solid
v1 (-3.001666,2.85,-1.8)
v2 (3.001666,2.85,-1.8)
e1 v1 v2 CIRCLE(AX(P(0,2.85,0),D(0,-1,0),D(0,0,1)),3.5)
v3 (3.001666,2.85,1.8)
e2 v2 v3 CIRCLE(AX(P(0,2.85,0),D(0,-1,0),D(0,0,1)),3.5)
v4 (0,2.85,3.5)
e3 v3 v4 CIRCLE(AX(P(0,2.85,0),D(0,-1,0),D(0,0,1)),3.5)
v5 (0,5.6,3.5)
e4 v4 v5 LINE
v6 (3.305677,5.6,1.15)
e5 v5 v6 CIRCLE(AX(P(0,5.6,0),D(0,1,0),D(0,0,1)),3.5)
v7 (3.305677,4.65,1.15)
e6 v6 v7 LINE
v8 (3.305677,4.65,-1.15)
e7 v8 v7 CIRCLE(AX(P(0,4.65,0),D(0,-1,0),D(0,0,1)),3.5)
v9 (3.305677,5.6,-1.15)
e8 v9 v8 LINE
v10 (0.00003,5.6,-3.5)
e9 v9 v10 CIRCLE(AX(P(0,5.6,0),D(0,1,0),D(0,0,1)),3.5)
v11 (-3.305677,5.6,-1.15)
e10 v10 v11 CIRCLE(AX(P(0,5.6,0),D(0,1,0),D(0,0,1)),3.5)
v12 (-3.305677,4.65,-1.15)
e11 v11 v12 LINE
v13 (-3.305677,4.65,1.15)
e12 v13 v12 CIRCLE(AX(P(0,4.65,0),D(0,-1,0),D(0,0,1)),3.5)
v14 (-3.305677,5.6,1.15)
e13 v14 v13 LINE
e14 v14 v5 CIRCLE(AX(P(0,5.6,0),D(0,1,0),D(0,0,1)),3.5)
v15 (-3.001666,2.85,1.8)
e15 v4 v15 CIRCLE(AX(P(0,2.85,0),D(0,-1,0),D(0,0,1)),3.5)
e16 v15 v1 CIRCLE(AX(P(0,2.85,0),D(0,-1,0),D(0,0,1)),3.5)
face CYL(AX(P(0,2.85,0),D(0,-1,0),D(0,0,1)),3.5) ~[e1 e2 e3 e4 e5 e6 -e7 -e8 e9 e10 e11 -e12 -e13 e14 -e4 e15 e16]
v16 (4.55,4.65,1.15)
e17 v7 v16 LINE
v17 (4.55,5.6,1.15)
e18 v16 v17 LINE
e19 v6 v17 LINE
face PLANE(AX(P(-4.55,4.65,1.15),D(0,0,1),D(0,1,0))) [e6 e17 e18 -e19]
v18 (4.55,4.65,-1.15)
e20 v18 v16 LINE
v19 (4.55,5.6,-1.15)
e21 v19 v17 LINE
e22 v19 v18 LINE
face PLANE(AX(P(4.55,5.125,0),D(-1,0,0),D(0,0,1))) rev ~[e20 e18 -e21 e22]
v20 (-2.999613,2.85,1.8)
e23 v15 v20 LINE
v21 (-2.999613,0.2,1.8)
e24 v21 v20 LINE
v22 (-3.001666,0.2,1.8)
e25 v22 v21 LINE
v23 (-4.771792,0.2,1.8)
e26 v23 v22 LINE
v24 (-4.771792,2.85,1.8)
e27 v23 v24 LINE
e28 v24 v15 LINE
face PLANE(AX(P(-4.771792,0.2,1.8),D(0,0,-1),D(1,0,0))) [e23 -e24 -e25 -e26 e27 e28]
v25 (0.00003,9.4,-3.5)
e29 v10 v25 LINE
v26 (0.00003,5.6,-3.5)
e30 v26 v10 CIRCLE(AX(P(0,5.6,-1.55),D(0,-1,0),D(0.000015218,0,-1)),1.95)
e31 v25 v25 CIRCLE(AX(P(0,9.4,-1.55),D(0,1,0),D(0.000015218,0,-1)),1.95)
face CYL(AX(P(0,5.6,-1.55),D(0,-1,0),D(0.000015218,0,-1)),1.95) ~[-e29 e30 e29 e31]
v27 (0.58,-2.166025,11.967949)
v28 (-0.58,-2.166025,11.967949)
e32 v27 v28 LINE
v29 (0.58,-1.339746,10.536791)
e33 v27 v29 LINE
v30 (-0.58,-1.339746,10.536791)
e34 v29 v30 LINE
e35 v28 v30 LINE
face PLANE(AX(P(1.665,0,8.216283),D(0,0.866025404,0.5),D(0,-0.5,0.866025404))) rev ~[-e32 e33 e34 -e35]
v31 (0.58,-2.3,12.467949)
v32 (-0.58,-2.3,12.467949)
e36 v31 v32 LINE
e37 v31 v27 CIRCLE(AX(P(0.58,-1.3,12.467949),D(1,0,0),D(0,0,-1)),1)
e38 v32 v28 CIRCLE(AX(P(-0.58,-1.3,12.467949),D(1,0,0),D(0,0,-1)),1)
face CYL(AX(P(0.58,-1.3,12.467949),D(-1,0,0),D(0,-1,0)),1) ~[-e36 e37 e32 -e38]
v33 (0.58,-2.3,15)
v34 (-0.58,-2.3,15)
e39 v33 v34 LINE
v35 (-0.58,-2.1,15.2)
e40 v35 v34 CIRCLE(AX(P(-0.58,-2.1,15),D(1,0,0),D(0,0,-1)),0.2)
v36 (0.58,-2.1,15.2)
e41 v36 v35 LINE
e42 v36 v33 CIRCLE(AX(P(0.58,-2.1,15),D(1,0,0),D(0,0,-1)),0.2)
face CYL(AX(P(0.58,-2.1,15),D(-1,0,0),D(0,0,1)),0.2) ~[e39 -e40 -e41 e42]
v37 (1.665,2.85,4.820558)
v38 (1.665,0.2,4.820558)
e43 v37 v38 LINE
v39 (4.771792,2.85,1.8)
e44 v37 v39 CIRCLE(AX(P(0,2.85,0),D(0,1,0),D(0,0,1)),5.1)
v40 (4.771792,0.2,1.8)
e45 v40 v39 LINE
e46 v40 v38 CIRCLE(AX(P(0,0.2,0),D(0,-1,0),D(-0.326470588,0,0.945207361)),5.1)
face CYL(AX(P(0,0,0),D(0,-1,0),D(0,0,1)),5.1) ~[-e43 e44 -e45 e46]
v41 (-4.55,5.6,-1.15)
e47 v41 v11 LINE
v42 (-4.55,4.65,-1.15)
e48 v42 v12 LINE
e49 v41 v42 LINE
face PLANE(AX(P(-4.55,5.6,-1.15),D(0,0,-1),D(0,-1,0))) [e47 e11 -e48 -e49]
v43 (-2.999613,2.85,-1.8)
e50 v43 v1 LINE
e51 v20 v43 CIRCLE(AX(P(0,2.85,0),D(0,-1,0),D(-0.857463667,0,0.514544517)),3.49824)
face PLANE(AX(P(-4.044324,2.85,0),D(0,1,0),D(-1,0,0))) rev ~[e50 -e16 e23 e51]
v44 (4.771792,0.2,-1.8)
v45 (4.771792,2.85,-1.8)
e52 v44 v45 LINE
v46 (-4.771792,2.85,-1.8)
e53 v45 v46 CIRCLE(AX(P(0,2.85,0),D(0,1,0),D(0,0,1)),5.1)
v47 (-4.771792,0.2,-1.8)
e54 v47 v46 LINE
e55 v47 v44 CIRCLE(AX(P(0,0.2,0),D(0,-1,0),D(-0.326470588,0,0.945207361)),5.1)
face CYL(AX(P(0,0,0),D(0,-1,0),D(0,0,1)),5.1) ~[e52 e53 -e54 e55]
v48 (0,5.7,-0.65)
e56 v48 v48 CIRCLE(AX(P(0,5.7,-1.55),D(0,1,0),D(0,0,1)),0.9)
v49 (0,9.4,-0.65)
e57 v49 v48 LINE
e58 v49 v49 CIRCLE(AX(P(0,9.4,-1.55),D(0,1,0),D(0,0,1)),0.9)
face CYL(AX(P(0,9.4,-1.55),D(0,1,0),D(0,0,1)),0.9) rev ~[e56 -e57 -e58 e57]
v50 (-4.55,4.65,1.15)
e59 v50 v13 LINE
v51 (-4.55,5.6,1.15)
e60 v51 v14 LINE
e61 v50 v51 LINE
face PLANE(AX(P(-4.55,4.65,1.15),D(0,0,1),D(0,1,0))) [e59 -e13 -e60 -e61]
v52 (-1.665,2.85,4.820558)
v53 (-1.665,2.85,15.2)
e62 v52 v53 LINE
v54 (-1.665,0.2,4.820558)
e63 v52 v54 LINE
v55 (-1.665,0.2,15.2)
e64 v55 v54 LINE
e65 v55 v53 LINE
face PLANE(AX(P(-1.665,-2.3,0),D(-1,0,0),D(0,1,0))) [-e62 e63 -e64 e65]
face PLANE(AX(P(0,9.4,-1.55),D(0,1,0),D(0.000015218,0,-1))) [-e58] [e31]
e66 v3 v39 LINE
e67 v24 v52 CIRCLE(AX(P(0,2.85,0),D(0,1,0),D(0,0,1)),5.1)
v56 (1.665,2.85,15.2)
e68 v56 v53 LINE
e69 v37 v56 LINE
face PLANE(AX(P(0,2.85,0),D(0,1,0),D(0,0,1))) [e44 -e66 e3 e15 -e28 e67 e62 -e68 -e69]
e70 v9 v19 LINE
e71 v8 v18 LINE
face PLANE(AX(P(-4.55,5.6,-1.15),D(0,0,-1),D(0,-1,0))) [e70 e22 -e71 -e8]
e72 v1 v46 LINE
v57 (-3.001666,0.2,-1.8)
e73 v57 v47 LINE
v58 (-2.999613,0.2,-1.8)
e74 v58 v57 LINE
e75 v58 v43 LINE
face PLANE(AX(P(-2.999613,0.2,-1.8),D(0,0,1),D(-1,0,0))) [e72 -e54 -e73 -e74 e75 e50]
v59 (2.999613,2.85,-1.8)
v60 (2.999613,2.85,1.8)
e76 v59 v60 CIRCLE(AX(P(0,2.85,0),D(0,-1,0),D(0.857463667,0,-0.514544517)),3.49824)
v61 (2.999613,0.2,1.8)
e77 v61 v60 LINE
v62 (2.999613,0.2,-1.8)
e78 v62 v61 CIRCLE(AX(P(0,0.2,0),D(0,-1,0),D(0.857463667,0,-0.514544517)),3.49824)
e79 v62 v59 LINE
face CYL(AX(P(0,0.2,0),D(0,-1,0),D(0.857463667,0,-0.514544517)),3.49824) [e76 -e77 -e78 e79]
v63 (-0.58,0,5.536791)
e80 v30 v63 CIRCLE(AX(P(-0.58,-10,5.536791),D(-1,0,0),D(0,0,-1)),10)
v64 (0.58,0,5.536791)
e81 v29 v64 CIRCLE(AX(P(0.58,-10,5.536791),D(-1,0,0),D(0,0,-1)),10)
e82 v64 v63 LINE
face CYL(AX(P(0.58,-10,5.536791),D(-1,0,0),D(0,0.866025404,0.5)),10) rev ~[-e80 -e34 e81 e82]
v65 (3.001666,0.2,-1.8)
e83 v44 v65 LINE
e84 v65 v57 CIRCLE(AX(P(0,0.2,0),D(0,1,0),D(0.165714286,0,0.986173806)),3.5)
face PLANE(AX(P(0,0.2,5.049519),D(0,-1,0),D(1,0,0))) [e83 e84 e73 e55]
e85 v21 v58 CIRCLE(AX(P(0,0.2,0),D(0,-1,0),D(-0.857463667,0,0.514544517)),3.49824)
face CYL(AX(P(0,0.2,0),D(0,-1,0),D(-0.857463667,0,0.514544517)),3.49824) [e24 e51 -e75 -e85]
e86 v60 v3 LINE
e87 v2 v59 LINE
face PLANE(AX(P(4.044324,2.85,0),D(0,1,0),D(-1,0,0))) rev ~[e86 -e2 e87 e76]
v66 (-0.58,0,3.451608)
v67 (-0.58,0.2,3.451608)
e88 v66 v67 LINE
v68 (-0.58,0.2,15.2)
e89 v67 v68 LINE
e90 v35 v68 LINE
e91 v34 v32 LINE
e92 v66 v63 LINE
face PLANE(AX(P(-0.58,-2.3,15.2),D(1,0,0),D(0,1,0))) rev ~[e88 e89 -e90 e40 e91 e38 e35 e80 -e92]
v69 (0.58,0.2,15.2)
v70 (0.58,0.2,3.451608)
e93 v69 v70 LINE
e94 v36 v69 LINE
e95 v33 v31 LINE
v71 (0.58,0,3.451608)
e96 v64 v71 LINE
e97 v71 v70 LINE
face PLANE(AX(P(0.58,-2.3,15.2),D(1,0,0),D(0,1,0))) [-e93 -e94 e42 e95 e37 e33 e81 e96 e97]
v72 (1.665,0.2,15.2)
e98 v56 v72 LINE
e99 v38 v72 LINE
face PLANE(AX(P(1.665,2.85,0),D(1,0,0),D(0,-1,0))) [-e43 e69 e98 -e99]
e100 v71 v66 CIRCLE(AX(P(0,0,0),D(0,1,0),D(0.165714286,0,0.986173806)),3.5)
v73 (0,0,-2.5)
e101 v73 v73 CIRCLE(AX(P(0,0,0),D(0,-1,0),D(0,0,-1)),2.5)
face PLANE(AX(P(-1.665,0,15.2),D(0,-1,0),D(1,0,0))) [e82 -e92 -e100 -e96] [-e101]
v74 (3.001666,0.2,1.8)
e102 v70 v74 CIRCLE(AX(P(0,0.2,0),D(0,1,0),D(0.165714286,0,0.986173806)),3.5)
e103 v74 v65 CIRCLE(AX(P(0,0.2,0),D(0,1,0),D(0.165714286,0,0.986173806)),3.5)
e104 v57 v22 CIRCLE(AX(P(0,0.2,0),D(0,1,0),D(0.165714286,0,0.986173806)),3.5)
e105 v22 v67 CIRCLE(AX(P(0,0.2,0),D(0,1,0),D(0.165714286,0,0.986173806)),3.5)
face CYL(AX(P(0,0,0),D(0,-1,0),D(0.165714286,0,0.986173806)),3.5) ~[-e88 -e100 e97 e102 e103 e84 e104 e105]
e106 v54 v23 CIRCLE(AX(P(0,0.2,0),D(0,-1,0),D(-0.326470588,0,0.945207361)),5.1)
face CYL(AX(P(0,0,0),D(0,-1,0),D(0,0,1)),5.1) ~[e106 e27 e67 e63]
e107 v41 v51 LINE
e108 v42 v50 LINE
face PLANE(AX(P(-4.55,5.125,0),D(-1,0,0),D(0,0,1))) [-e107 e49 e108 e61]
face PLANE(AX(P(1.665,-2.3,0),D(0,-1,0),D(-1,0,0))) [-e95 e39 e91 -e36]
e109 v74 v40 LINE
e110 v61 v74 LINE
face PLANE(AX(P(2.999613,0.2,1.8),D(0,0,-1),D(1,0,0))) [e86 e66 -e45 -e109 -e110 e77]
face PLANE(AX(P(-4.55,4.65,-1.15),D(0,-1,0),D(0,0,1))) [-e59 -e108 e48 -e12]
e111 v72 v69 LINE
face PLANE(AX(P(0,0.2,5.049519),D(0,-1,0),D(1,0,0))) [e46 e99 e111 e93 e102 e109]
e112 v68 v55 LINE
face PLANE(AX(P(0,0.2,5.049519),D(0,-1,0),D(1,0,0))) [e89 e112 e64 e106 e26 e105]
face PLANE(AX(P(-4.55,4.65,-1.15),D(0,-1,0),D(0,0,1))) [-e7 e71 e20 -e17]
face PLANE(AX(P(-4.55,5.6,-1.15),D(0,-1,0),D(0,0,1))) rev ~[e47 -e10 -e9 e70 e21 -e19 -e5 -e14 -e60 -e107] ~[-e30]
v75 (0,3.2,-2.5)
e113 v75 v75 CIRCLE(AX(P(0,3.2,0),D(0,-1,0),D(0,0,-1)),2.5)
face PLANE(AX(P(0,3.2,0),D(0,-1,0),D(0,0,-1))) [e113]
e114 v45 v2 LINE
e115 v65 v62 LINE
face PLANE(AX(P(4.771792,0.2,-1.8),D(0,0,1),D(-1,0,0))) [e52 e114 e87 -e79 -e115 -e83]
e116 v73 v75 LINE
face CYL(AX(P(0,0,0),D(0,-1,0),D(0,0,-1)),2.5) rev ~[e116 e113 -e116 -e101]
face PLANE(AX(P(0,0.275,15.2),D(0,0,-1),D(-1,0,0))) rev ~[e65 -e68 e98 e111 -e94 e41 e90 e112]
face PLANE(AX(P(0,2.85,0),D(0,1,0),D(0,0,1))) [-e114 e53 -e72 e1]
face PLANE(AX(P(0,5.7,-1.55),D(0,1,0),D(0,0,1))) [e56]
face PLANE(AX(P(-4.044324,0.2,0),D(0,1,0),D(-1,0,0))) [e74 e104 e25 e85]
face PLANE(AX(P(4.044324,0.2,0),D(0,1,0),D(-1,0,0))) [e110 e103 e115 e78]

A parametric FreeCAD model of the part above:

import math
import FreeCAD as App
import Part
import Sketcher

V = App.Vector
Q = App.Units.Quantity


def edges_at(feature, points):
    """Names of the edges that pass closest to the given points."""
    edges = feature.Shape.Edges
    near = lambda p: min(range(len(edges)), key=lambda i: edges[i].distToShape(Part.Vertex(*p))[0])
    return sorted({f"Edge{near(p) + 1}" for p in points})


def add_polygon(sketch, points):
    """Adds a closed chain of lines whose ends are joined by coincident constraints."""
    first, n = sketch.GeometryCount, len(points)
    for a, b in zip(points, points[1:] + points[:1]):
        sketch.addGeometry(Part.LineSegment(App.Vector(*a, 0), App.Vector(*b, 0)), False)
    for i in range(n):
        sketch.addConstraint(Sketcher.Constraint("Coincident", first + i, 2, first + (i + 1) % n, 1))

doc = App.newDocument("Part")
body = doc.addObject("PartDesign::Body", "Body")

# Sketch on XZ plane
sketch1 = doc.addObject("Sketcher::SketchObject", "Sketch")
body.addObject(sketch1)
sketch1.AttachmentSupport = (doc.XZ_Plane, [""])
sketch1.MapMode = "FlatFace"
sketch1.addGeometry(Part.Circle(V(0, 0, 0), V(0, 0, 1), 5.1), False)
sketch1.addConstraint([
    Sketcher.Constraint("Coincident", 0, 3, -1, 1),
    Sketcher.Constraint("Diameter", 0, Q("10.2 mm")),
])
pad1 = doc.addObject("PartDesign::Pad", "Pad")
body.addObject(pad1)
pad1.Profile = sketch1
pad1.Length = 2.85
pad1.Reversed = True

# Sketch on XZ plane
sketch2 = doc.addObject("Sketcher::SketchObject", "Sketch001")
body.addObject(sketch2)
sketch2.AttachmentSupport = (doc.XZ_Plane, [""])
sketch2.MapMode = "FlatFace"
sketch2.AttachmentOffset = App.Placement(V(0, 0, -2.85), App.Rotation())
sketch2.addGeometry(Part.Circle(V(0, 0, 0), V(0, 0, 1), 3.5), False)
sketch2.addConstraint([
    Sketcher.Constraint("Coincident", 0, 3, -1, 1),
    Sketcher.Constraint("Diameter", 0, Q("7 mm")),
])
pad2 = doc.addObject("PartDesign::Pad", "Pad001")
body.addObject(pad2)
pad2.Profile = sketch2
pad2.Length = 2.75
pad2.Reversed = True

# Sketch on XZ plane
sketch3 = doc.addObject("Sketcher::SketchObject", "Sketch002")
body.addObject(sketch3)
sketch3.AttachmentSupport = (doc.XZ_Plane, [""])
sketch3.MapMode = "FlatFace"
sketch3.AttachmentOffset = App.Placement(V(0, 0, -5.6), App.Rotation())
sketch3.addGeometry(Part.Circle(V(0, -1.55, 0), V(0, 0, 1), 1.95), False)
sketch3.addConstraint([
    Sketcher.Constraint("PointOnObject", 0, 3, -2),
    Sketcher.Constraint("Diameter", 0, Q("3.9 mm")),
    Sketcher.Constraint("DistanceY", 0, 3, -1, 1, Q("1.55 mm")),
])
pad3 = doc.addObject("PartDesign::Pad", "Pad002")
body.addObject(pad3)
pad3.Profile = sketch3
pad3.Length = 3.8
pad3.Reversed = True

# Sketch on XY plane
sketch4 = doc.addObject("Sketcher::SketchObject", "Sketch003")
body.addObject(sketch4)
sketch4.AttachmentSupport = (doc.XY_Plane, [""])
sketch4.MapMode = "FlatFace"
add_polygon(sketch4, [(1.665, 2.85), (-1.665, 2.85), (-1.665, -2.3), (1.665, -2.3)])  # lines 0-3
sketch4.addConstraint([
    Sketcher.Constraint("Horizontal", 0),
    Sketcher.Constraint("Vertical", 1),
    Sketcher.Constraint("Horizontal", 2),
    Sketcher.Constraint("Vertical", 3),
    Sketcher.Constraint("DistanceX", 0, 2, 0, 1, Q("3.33 mm")),
    Sketcher.Constraint("DistanceY", 1, 2, 1, 1, Q("5.15 mm")),
    Sketcher.Constraint("DistanceY", 1, 2, -1, 1, Q("2.3 mm")),
    Sketcher.Constraint("DistanceX", 0, 2, -1, 1, Q("1.665 mm")),
])
pad4 = doc.addObject("PartDesign::Pad", "Pad003")
body.addObject(pad4)
pad4.Profile = sketch4
pad4.Length = 15.2

# Sketch on YZ plane
sketch5 = doc.addObject("Sketcher::SketchObject", "Sketch004")
body.addObject(sketch5)
sketch5.AttachmentSupport = (doc.YZ_Plane, [""])
sketch5.MapMode = "FlatFace"
sketch5.AttachmentOffset = App.Placement(V(0, 0, 1.665), App.Rotation())
add_polygon(sketch5, [(-2.3, 0), (0, 0), (0, 8.216283), (-2.3, 12.2)])  # lines 0-3
sketch5.addConstraint([
    Sketcher.Constraint("Horizontal", 0),
    Sketcher.Constraint("Vertical", 1),
    Sketcher.Constraint("Vertical", 3),
    Sketcher.Constraint("Coincident", 0, 2, -1, 1),
    Sketcher.Constraint("Angle", 2, Q("120 deg")),
    Sketcher.Constraint("DistanceX", 0, 1, 0, 2, Q("2.3 mm")),
    Sketcher.Constraint("DistanceY", 3, 2, 3, 1, Q("12.2 mm")),
])
pocket1 = doc.addObject("PartDesign::Pocket", "Pocket")
body.addObject(pocket1)
pocket1.Profile = sketch5
pocket1.Type = "UpToFirst"

# Sketch on XY plane
sketch6 = doc.addObject("Sketcher::SketchObject", "Sketch005")
body.addObject(sketch6)
sketch6.AttachmentSupport = (doc.XY_Plane, [""])
sketch6.MapMode = "FlatFace"
sketch6.AttachmentOffset = App.Placement(V(0, 0, 15.2), App.Rotation())
add_polygon(sketch6, [(-1.665, 0), (-1.665, -2.3), (-0.58, -2.3), (-0.58, 0)])  # lines 0-3
add_polygon(sketch6, [(0.58, 0), (0.58, -2.3), (1.665, -2.3), (1.665, 0)])  # lines 4-7
sketch6.addConstraint([
    Sketcher.Constraint("Vertical", 0),
    Sketcher.Constraint("Horizontal", 1),
    Sketcher.Constraint("Vertical", 2),
    Sketcher.Constraint("Horizontal", 3),
    Sketcher.Constraint("Vertical", 4),
    Sketcher.Constraint("Horizontal", 5),
    Sketcher.Constraint("Vertical", 6),
    Sketcher.Constraint("Horizontal", 7),
    Sketcher.Constraint("Symmetric", 3, 2, 6, 2, -1, 1),
    Sketcher.Constraint("Symmetric", 1, 2, 4, 2, -2),
    Sketcher.Constraint("PointOnObject", 2, 2, -1),
    Sketcher.Constraint("DistanceY", 0, 2, 0, 1, Q("2.3 mm")),
    Sketcher.Constraint("DistanceX", 1, 1, 1, 2, Q("1.085 mm")),
    Sketcher.Constraint("DistanceX", 1, 2, -1, 1, Q("0.58 mm")),
])
pocket2 = doc.addObject("PartDesign::Pocket", "Pocket001")
body.addObject(pocket2)
pocket2.Profile = sketch6
pocket2.Length = 10.2
doc.recompute()

fillet = doc.addObject("PartDesign::Fillet", "Fillet")
body.addObject(fillet)
fillet.Base = (pocket2, edges_at(pocket2, [(0, -2.3, 12.2)]))
fillet.Radius = 1
doc.recompute()

fillet2 = doc.addObject("PartDesign::Fillet", "Fillet001")
body.addObject(fillet2)
fillet2.Base = (fillet, edges_at(fillet, [(0, 0, 8.216)]))
fillet2.Radius = 10

# Sketch on XZ plane
sketch7 = doc.addObject("Sketcher::SketchObject", "Sketch006")
body.addObject(sketch7)
sketch7.AttachmentSupport = (doc.XZ_Plane, [""])
sketch7.MapMode = "FlatFace"
sketch7.addGeometry([
    Part.LineSegment(V(-0.58, 15.2, 0), V(-1.665, 15.2, 0)),  # 0
    Part.LineSegment(V(-1.665, 15.2, 0), V(-1.665, 4.820558, 0)),  # 1
    Part.ArcOfCircle(Part.Circle(V(0, 0, 0), V(0, 0, 1), 5.1), math.radians(109.054694), math.radians(430.945306)),  # 2
    Part.LineSegment(V(1.665, 4.820558, 0), V(1.665, 15.2, 0)),  # 3
    Part.LineSegment(V(1.665, 15.2, 0), V(0.58, 15.2, 0)),  # 4
    Part.LineSegment(V(0.58, 15.2, 0), V(0.58, 3.451608, 0)),  # 5
    Part.ArcOfCircle(Part.Circle(V(0, 0, 0), V(0, 0, 1), 3.5), math.radians(99.538731), math.radians(440.461269)),  # 6
    Part.LineSegment(V(-0.58, 3.451608, 0), V(-0.58, 15.2, 0)),  # 7
], False)
sketch7.addConstraint([
    Sketcher.Constraint("Coincident", 0, 2, 1, 1),
    Sketcher.Constraint("Coincident", 1, 2, 2, 1),
    Sketcher.Constraint("Coincident", 2, 2, 3, 1),
    Sketcher.Constraint("Coincident", 3, 2, 4, 1),
    Sketcher.Constraint("Coincident", 4, 2, 5, 1),
    Sketcher.Constraint("Coincident", 5, 2, 6, 2),
    Sketcher.Constraint("Coincident", 6, 1, 7, 1),
    Sketcher.Constraint("Coincident", 7, 2, 0, 1),
    Sketcher.Constraint("Horizontal", 0),
    Sketcher.Constraint("Vertical", 1),
    Sketcher.Constraint("Vertical", 3),
    Sketcher.Constraint("Horizontal", 4),
    Sketcher.Constraint("Vertical", 5),
    Sketcher.Constraint("Vertical", 7),
    Sketcher.Constraint("Coincident", 2, 3, -1, 1),
    Sketcher.Constraint("Coincident", 6, 3, -1, 1),
    Sketcher.Constraint("Symmetric", 0, 2, 3, 2, -2),
    Sketcher.Constraint("Horizontal", 5, 2, 6, 1),
    Sketcher.Constraint("Radius", 2, Q("5.1 mm")),
    Sketcher.Constraint("Radius", 6, Q("3.5 mm")),
    Sketcher.Constraint("DistanceY", -1, 1, 0, 2, Q("15.2 mm")),
    Sketcher.Constraint("DistanceX", 0, 2, 0, 1, Q("1.085 mm")),
    Sketcher.Constraint("DistanceX", -1, 1, 4, 2, Q("0.58 mm")),
])
pocket3 = doc.addObject("PartDesign::Pocket", "Pocket002")
body.addObject(pocket3)
pocket3.Profile = sketch7
pocket3.Length = 0.2

# Sketch on XZ plane
sketch8 = doc.addObject("Sketcher::SketchObject", "Sketch007")
body.addObject(sketch8)
sketch8.AttachmentSupport = (doc.XZ_Plane, [""])
sketch8.MapMode = "FlatFace"
sketch8.addGeometry(Part.Circle(V(0, 0, 0), V(0, 0, 1), 2.5), False)
sketch8.addConstraint([
    Sketcher.Constraint("Coincident", 0, 3, -1, 1),
    Sketcher.Constraint("Diameter", 0, Q("5 mm")),
])
pocket4 = doc.addObject("PartDesign::Pocket", "Pocket003")
body.addObject(pocket4)
pocket4.Profile = sketch8
pocket4.Length = 3.2

# Sketch on XZ plane
sketch9 = doc.addObject("Sketcher::SketchObject", "Sketch008")
body.addObject(sketch9)
sketch9.AttachmentSupport = (doc.XZ_Plane, [""])
sketch9.MapMode = "FlatFace"
sketch9.AttachmentOffset = App.Placement(V(0, 0, -9.4), App.Rotation())
sketch9.addGeometry(Part.Circle(V(0, -1.55, 0), V(0, 0, 1), 0.9), False)
sketch9.addConstraint([
    Sketcher.Constraint("PointOnObject", 0, 3, -2),
    Sketcher.Constraint("Diameter", 0, Q("1.8 mm")),
    Sketcher.Constraint("DistanceY", 0, 3, -1, 1, Q("1.55 mm")),
])
pocket5 = doc.addObject("PartDesign::Pocket", "Pocket004")
body.addObject(pocket5)
pocket5.Profile = sketch9
pocket5.Length = 3.7
pocket5.Reversed = True

# Sketch on XZ plane
sketch10 = doc.addObject("Sketcher::SketchObject", "Sketch009")
body.addObject(sketch10)
sketch10.AttachmentSupport = (doc.XZ_Plane, [""])
sketch10.MapMode = "FlatFace"
sketch10.AttachmentOffset = App.Placement(V(0, 0, -0.2), App.Rotation())
sketch10.addGeometry([
    Part.LineSegment(V(-2.999613, 1.8, 0), V(-4.771792, 1.8, 0)),  # 0
    Part.ArcOfCircle(Part.Circle(V(0, 0, 0), V(0, 0, 1), 5.1), math.radians(159.332683), math.radians(200.667317)),  # 1
    Part.LineSegment(V(-4.771792, -1.8, 0), V(-2.999613, -1.8, 0)),  # 2
    Part.ArcOfCircle(Part.Circle(V(0, 0, 0), V(0, 0, 1), 3.49824), math.radians(149.032985), math.radians(210.967015)),  # 3
    Part.LineSegment(V(2.999613, -1.8, 0), V(4.771792, -1.8, 0)),  # 4
    Part.ArcOfCircle(Part.Circle(V(0, 0, 0), V(0, 0, 1), 5.1), math.radians(-20.667317), math.radians(20.667317)),  # 5
    Part.LineSegment(V(4.771792, 1.8, 0), V(2.999613, 1.8, 0)),  # 6
    Part.ArcOfCircle(Part.Circle(V(0, 0, 0), V(0, 0, 1), 3.49824), math.radians(-30.967015), math.radians(30.967015)),  # 7
], False)
sketch10.addConstraint([
    Sketcher.Constraint("Coincident", 0, 2, 1, 1),
    Sketcher.Constraint("Coincident", 1, 2, 2, 1),
    Sketcher.Constraint("Coincident", 2, 2, 3, 2),
    Sketcher.Constraint("Coincident", 3, 1, 0, 1),
    Sketcher.Constraint("Coincident", 4, 2, 5, 1),
    Sketcher.Constraint("Coincident", 5, 2, 6, 1),
    Sketcher.Constraint("Coincident", 6, 2, 7, 2),
    Sketcher.Constraint("Coincident", 7, 1, 4, 1),
    Sketcher.Constraint("Horizontal", 0),
    Sketcher.Constraint("Horizontal", 2),
    Sketcher.Constraint("Horizontal", 4),
    Sketcher.Constraint("Horizontal", 6),
    Sketcher.Constraint("Coincident", 1, 3, -1, 1),
    Sketcher.Constraint("Coincident", 3, 3, -1, 1),
    Sketcher.Constraint("Coincident", 5, 3, -1, 1),
    Sketcher.Constraint("Coincident", 7, 3, -1, 1),
    Sketcher.Constraint("Equal", 1, 5),
    Sketcher.Constraint("Equal", 3, 7),
    Sketcher.Constraint("Horizontal", 2, 2, 4, 2),
    Sketcher.Constraint("Horizontal", 3, 1, 5, 2),
    Sketcher.Constraint("Vertical", 0, 2, 1, 2),
    Sketcher.Constraint("Radius", 1, Q("5.1 mm")),
    Sketcher.Constraint("DistanceY", -1, 1, 0, 2, Q("1.8 mm")),
    Sketcher.Constraint("Radius", 3, Q("3.49824 mm")),
])
pocket6 = doc.addObject("PartDesign::Pocket", "Pocket005")
body.addObject(pocket6)
pocket6.Profile = sketch10
pocket6.Length = 2.65
doc.recompute()

fillet3 = doc.addObject("PartDesign::Fillet", "Fillet002")
body.addObject(fillet3)
fillet3.Base = (pocket6, edges_at(pocket6, [(0, -2.3, 15.2)]))
fillet3.Radius = 0.2

# Sketch on YZ plane
sketch11 = doc.addObject("Sketcher::SketchObject", "Sketch010")
body.addObject(sketch11)
sketch11.AttachmentSupport = (doc.YZ_Plane, [""])
sketch11.MapMode = "FlatFace"
add_polygon(sketch11, [(5.6, -1.15), (5.6, 1.15), (4.65, 1.15), (4.65, -1.15)])  # lines 0-3
sketch11.addConstraint([
    Sketcher.Constraint("Vertical", 0),
    Sketcher.Constraint("Horizontal", 1),
    Sketcher.Constraint("Vertical", 2),
    Sketcher.Constraint("Horizontal", 3),
    Sketcher.Constraint("DistanceY", 0, 1, 0, 2, Q("2.3 mm")),
    Sketcher.Constraint("DistanceX", 1, 2, 1, 1, Q("0.95 mm")),
    Sketcher.Constraint("DistanceX", -1, 1, 0, 2, Q("5.6 mm")),
    Sketcher.Constraint("DistanceY", -1, 1, 0, 2, Q("1.15 mm")),
])
pad5 = doc.addObject("PartDesign::Pad", "Pad004")
body.addObject(pad5)
pad5.Profile = sketch11
pad5.Type = "TwoLengths"
pad5.Length = 4.55
pad5.Length2 = 4.55

doc.recompute()
